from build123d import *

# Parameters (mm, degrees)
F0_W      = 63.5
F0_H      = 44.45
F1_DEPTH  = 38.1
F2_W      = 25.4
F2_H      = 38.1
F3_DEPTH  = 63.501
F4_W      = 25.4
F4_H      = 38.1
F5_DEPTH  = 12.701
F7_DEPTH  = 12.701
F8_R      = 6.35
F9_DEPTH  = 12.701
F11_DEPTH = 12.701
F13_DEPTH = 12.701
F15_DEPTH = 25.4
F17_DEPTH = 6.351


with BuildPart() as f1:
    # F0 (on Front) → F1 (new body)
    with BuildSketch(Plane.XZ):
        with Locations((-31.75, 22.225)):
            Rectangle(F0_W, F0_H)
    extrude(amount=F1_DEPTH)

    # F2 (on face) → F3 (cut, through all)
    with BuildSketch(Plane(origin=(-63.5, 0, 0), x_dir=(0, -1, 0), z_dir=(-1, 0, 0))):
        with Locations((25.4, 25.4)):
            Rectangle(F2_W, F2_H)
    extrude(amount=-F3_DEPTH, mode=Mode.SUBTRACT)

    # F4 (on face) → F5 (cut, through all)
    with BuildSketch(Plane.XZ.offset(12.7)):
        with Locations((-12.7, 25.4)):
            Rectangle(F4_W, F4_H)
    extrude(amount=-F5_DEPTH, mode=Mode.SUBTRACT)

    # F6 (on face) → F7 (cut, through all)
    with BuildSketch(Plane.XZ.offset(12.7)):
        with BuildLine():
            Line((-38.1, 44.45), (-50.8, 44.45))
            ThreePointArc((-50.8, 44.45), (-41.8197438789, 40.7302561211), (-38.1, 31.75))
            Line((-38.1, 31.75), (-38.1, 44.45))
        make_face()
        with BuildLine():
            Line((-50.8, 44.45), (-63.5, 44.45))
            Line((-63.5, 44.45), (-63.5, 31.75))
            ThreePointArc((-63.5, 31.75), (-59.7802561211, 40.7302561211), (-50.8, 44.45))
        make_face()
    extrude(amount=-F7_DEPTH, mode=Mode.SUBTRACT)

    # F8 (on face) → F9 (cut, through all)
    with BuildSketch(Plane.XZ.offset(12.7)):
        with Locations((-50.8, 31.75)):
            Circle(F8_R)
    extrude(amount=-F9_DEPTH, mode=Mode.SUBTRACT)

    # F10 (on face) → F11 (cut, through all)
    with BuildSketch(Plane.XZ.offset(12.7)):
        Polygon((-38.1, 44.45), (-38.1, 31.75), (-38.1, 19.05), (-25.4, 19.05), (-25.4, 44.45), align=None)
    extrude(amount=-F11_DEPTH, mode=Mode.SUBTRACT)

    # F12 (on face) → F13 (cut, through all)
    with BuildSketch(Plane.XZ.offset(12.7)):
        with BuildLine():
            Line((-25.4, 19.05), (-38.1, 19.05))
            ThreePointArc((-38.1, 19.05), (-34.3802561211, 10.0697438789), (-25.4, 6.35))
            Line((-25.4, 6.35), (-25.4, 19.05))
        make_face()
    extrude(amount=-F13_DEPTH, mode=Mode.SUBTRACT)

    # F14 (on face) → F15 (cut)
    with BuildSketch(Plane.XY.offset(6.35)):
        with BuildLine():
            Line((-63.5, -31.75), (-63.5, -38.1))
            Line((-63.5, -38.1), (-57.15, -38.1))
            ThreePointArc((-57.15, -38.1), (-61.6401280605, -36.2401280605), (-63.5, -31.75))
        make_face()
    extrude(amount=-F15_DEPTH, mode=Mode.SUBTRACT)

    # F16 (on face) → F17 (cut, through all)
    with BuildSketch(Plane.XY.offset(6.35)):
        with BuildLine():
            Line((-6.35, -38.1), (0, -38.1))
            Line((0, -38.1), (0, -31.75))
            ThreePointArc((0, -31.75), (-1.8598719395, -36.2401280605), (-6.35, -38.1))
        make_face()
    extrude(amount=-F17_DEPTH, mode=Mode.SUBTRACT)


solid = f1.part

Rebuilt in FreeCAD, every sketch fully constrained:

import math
import FreeCAD as App
import Part
import Sketcher
from FreeCAD import Vector
Q = App.Units.Quantity

doc = App.newDocument("Part")
body = doc.addObject("PartDesign::Body", "Body")

# Sketch on XZ plane
sketch1 = body.newObject("Sketcher::SketchObject", "Sketch")
sketch1.AttachmentSupport = (doc.getObject("XZ_Plane"), [""])
sketch1.MapMode = "FlatFace"
sketch1.addGeometry([
    Part.LineSegment(Vector(-63.5, 44.45, 0), Vector(-63.5, 0, 0)),
    Part.LineSegment(Vector(-63.5, 0, 0), Vector(0, 0, 0)),
    Part.LineSegment(Vector(0, 0, 0), Vector(0, 44.45, 0)),
    Part.LineSegment(Vector(0, 44.45, 0), Vector(-63.5, 44.45, 0)),
], False)
sketch1.addConstraint([
    Sketcher.Constraint("Coincident", 0, 2, 1, 1),
    Sketcher.Constraint("Coincident", 1, 2, 2, 1),
    Sketcher.Constraint("Coincident", 2, 2, 3, 1),
    Sketcher.Constraint("Coincident", 3, 2, 0, 1),
    Sketcher.Constraint("Vertical", 0),
    Sketcher.Constraint("Horizontal", 1),
    Sketcher.Constraint("Vertical", 2),
    Sketcher.Constraint("Horizontal", 3),
    Sketcher.Constraint("Coincident", 1, 2, -1, 1),
    Sketcher.Constraint("DistanceX", 1, 1, 1, 2, Q("2.5 in")),
    Sketcher.Constraint("DistanceY", 0, 2, 0, 1, Q("1.75 in")),
])
pad1 = body.newObject("PartDesign::Pad", "Pad")
pad1.Profile = sketch1
pad1.Length = Q("1.5 in")

# Sketch on YZ plane
sketch2 = body.newObject("Sketcher::SketchObject", "Sketch001")
sketch2.AttachmentSupport = (doc.getObject("YZ_Plane"), [""])
sketch2.MapMode = "FlatFace"
sketch2.AttachmentOffset = App.Placement(Vector(0, 0, -2.5 * 25.4), App.Rotation())
sketch2.addGeometry([
    Part.LineSegment(Vector(-12.7, 44.45, 0), Vector(-12.7, 6.35, 0)),
    Part.LineSegment(Vector(-12.7, 6.35, 0), Vector(-38.1, 6.35, 0)),
    Part.LineSegment(Vector(-38.1, 6.35, 0), Vector(-38.1, 44.45, 0)),
    Part.LineSegment(Vector(-38.1, 44.45, 0), Vector(-12.7, 44.45, 0)),
], False)
sketch2.addConstraint([
    Sketcher.Constraint("Coincident", 0, 2, 1, 1),
    Sketcher.Constraint("Coincident", 1, 2, 2, 1),
    Sketcher.Constraint("Coincident", 2, 2, 3, 1),
    Sketcher.Constraint("Coincident", 3, 2, 0, 1),
    Sketcher.Constraint("Vertical", 0),
    Sketcher.Constraint("Horizontal", 1),
    Sketcher.Constraint("Vertical", 2),
    Sketcher.Constraint("Horizontal", 3),
    Sketcher.Constraint("DistanceX", 1, 2, 1, 1, Q("1 in")),
    Sketcher.Constraint("DistanceY", 0, 2, 0, 1, Q("1.5 in")),
    Sketcher.Constraint("DistanceX", 0, 2, -1, 1, Q("0.5 in")),
    Sketcher.Constraint("DistanceY", -1, 1, 0, 2, Q("0.25 in")),
])
pocket1 = body.newObject("PartDesign::Pocket", "Pocket")
pocket1.Profile = sketch2
pocket1.Type = "ThroughAll"
pocket1.Reversed = True

# Sketch on XZ plane
sketch3 = body.newObject("Sketcher::SketchObject", "Sketch002")
sketch3.AttachmentSupport = (doc.getObject("XZ_Plane"), [""])
sketch3.MapMode = "FlatFace"
sketch3.AttachmentOffset = App.Placement(Vector(0, 0, 0.5 * 25.4), App.Rotation())
sketch3.addGeometry([
    Part.LineSegment(Vector(-25.4, 44.45, 0), Vector(-25.4, 6.35, 0)),
    Part.LineSegment(Vector(-25.4, 6.35, 0), Vector(0, 6.35, 0)),
    Part.LineSegment(Vector(0, 6.35, 0), Vector(0, 44.45, 0)),
    Part.LineSegment(Vector(0, 44.45, 0), Vector(-25.4, 44.45, 0)),
], False)
sketch3.addConstraint([
    Sketcher.Constraint("Coincident", 0, 2, 1, 1),
    Sketcher.Constraint("Coincident", 1, 2, 2, 1),
    Sketcher.Constraint("Coincident", 2, 2, 3, 1),
    Sketcher.Constraint("Coincident", 3, 2, 0, 1),
    Sketcher.Constraint("Vertical", 0),
    Sketcher.Constraint("Horizontal", 1),
    Sketcher.Constraint("Vertical", 2),
    Sketcher.Constraint("Horizontal", 3),
    Sketcher.Constraint("PointOnObject", 1, 2, -2),
    Sketcher.Constraint("DistanceX", 1, 1, 1, 2, Q("1 in")),
    Sketcher.Constraint("DistanceY", 0, 2, 0, 1, Q("1.5 in")),
    Sketcher.Constraint("DistanceY", -1, 1, 0, 2, Q("0.25 in")),
])
pocket2 = body.newObject("PartDesign::Pocket", "Pocket001")
pocket2.Profile = sketch3
pocket2.Type = "ThroughAll"

# Sketch on XZ plane
sketch4 = body.newObject("Sketcher::SketchObject", "Sketch003")
sketch4.AttachmentSupport = (doc.getObject("XZ_Plane"), [""])
sketch4.MapMode = "FlatFace"
sketch4.AttachmentOffset = App.Placement(Vector(0, 0, 0.5 * 25.4), App.Rotation())
sketch4.addGeometry([
    Part.LineSegment(Vector(-38.1, 44.45, 0), Vector(-50.8, 44.45, 0)),  # 0
    Part.ArcOfCircle(Part.Circle(Vector(-50.8, 31.75, 0), Vector(0, 0, 1), 12.7), math.radians(0), math.radians(90)),  # 1
    Part.LineSegment(Vector(-38.1, 31.75, 0), Vector(-38.1, 44.45, 0)),  # 2
    Part.LineSegment(Vector(-50.8, 44.45, 0), Vector(-63.5, 44.45, 0)),  # 3
    Part.LineSegment(Vector(-63.5, 44.45, 0), Vector(-63.5, 31.75, 0)),  # 4
    Part.ArcOfCircle(Part.Circle(Vector(-50.8, 31.75, 0), Vector(0, 0, 1), 12.7), math.radians(90), math.radians(180)),  # 5
], False)
sketch4.addConstraint([
    Sketcher.Constraint("Tangent", 0, 2, 1, 2),
    Sketcher.Constraint("Tangent", 1, 1, 2, 1),
    Sketcher.Constraint("Coincident", 2, 2, 0, 1),
    Sketcher.Constraint("Coincident", 3, 2, 4, 1),
    Sketcher.Constraint("Tangent", 4, 2, 5, 2),
    Sketcher.Constraint("Tangent", 5, 1, 3, 1),
    Sketcher.Constraint("Horizontal", 0),
    Sketcher.Constraint("Vertical", 2),
    Sketcher.Constraint("Horizontal", 3),
    Sketcher.Constraint("Vertical", 4),
    Sketcher.Constraint("Coincident", 5, 3, 1, 3),
    Sketcher.Constraint("Equal", 1, 5),
    Sketcher.Constraint("Radius", 1, Q("0.5 in")),
    Sketcher.Constraint("DistanceX", 1, 3, -1, 1, Q("2 in")),
    Sketcher.Constraint("DistanceY", -1, 1, 1, 3, Q("1.25 in")),
])
pocket3 = body.newObject("PartDesign::Pocket", "Pocket002")
pocket3.Profile = sketch4
pocket3.Type = "ThroughAll"

# Sketch on XZ plane
sketch5 = body.newObject("Sketcher::SketchObject", "Sketch004")
sketch5.AttachmentSupport = (doc.getObject("XZ_Plane"), [""])
sketch5.MapMode = "FlatFace"
sketch5.AttachmentOffset = App.Placement(Vector(0, 0, 0.5 * 25.4), App.Rotation())
sketch5.addGeometry(Part.Circle(Vector(-50.8, 31.75, 0), Vector(0, 0, 1), 6.35), False)
sketch5.addConstraint([
    Sketcher.Constraint("Diameter", 0, Q("0.5 in")),
    Sketcher.Constraint("DistanceX", 0, 3, -1, 1, Q("2 in")),
    Sketcher.Constraint("DistanceY", -1, 1, 0, 3, Q("1.25 in")),
])
pocket4 = body.newObject("PartDesign::Pocket", "Pocket003")
pocket4.Profile = sketch5
pocket4.Type = "ThroughAll"

# Sketch on XZ plane
sketch6 = body.newObject("Sketcher::SketchObject", "Sketch005")
sketch6.AttachmentSupport = (doc.getObject("XZ_Plane"), [""])
sketch6.MapMode = "FlatFace"
sketch6.AttachmentOffset = App.Placement(Vector(0, 0, 0.5 * 25.4), App.Rotation())
sketch6.addGeometry([
    Part.LineSegment(Vector(-38.1, 44.45, 0), Vector(-38.1, 19.05, 0)),
    Part.LineSegment(Vector(-38.1, 19.05, 0), Vector(-25.4, 19.05, 0)),
    Part.LineSegment(Vector(-25.4, 19.05, 0), Vector(-25.4, 44.45, 0)),
    Part.LineSegment(Vector(-25.4, 44.45, 0), Vector(-38.1, 44.45, 0)),
], False)
sketch6.addConstraint([
    Sketcher.Constraint("Coincident", 0, 2, 1, 1),
    Sketcher.Constraint("Coincident", 1, 2, 2, 1),
    Sketcher.Constraint("Coincident", 2, 2, 3, 1),
    Sketcher.Constraint("Coincident", 3, 2, 0, 1),
    Sketcher.Constraint("Vertical", 0),
    Sketcher.Constraint("Horizontal", 1),
    Sketcher.Constraint("Vertical", 2),
    Sketcher.Constraint("Horizontal", 3),
    Sketcher.Constraint("DistanceY", 0, 2, 0, 1, Q("1 in")),
    Sketcher.Constraint("DistanceX", 1, 1, 1, 2, Q("0.5 in")),
    Sketcher.Constraint("DistanceX", 1, 2, -1, 1, Q("1 in")),
    Sketcher.Constraint("DistanceY", -1, 1, 0, 2, Q("0.75 in")),
])
pocket5 = body.newObject("PartDesign::Pocket", "Pocket004")
pocket5.Profile = sketch6
pocket5.Type = "ThroughAll"

# Sketch on XZ plane
sketch7 = body.newObject("Sketcher::SketchObject", "Sketch006")
sketch7.AttachmentSupport = (doc.getObject("XZ_Plane"), [""])
sketch7.MapMode = "FlatFace"
sketch7.AttachmentOffset = App.Placement(Vector(0, 0, 0.5 * 25.4), App.Rotation())
sketch7.addGeometry([
    Part.LineSegment(Vector(-25.4, 19.05, 0), Vector(-38.1, 19.05, 0)),
    Part.ArcOfCircle(Part.Circle(Vector(-25.4, 19.05, 0), Vector(0, 0, 1), 12.7), math.radians(180), math.radians(270)),
    Part.LineSegment(Vector(-25.4, 6.35, 0), Vector(-25.4, 19.05, 0)),
], False)
sketch7.addConstraint([
    Sketcher.Constraint("Coincident", 0, 2, 1, 1),
    Sketcher.Constraint("Coincident", 1, 2, 2, 1),
    Sketcher.Constraint("Coincident", 2, 2, 0, 1),
    Sketcher.Constraint("Horizontal", 0),
    Sketcher.Constraint("Vertical", 2),
    Sketcher.Constraint("Coincident", 2, 2, 1, 3),
    Sketcher.Constraint("Radius", 1, Q("0.5 in")),
    Sketcher.Constraint("DistanceX", 1, 3, -1, 1, Q("1 in")),
    Sketcher.Constraint("DistanceY", -1, 1, 1, 3, Q("0.75 in")),
])
pocket6 = body.newObject("PartDesign::Pocket", "Pocket005")
pocket6.Profile = sketch7
pocket6.Type = "ThroughAll"

# Sketch on XY plane
sketch8 = body.newObject("Sketcher::SketchObject", "Sketch007")
sketch8.AttachmentSupport = (doc.getObject("XY_Plane"), [""])
sketch8.MapMode = "FlatFace"
sketch8.AttachmentOffset = App.Placement(Vector(0, 0, 0.25 * 25.4), App.Rotation())
sketch8.addGeometry([
    Part.LineSegment(Vector(-63.5, -31.75, 0), Vector(-63.5, -38.1, 0)),
    Part.LineSegment(Vector(-63.5, -38.1, 0), Vector(-57.15, -38.1, 0)),
    Part.ArcOfCircle(Part.Circle(Vector(-57.15, -31.75, 0), Vector(0, 0, 1), 6.35), math.radians(180), math.radians(270)),
], False)
sketch8.addConstraint([
    Sketcher.Constraint("Coincident", 0, 2, 1, 1),
    Sketcher.Constraint("Tangent", 1, 2, 2, 2),
    Sketcher.Constraint("Tangent", 2, 1, 0, 1),
    Sketcher.Constraint("Vertical", 0),
    Sketcher.Constraint("Horizontal", 1),
    Sketcher.Constraint("Radius", 2, Q("0.25 in")),
    Sketcher.Constraint("DistanceX", 0, 2, -1, 1, Q("2.5 in")),
    Sketcher.Constraint("DistanceY", 0, 2, -1, 1, Q("1.5 in")),
])
pocket7 = body.newObject("PartDesign::Pocket", "Pocket006")
pocket7.Profile = sketch8
pocket7.Length = Q("1 in")

# Sketch on XY plane
sketch9 = body.newObject("Sketcher::SketchObject", "Sketch008")
sketch9.AttachmentSupport = (doc.getObject("XY_Plane"), [""])
sketch9.MapMode = "FlatFace"
sketch9.AttachmentOffset = App.Placement(Vector(0, 0, 0.25 * 25.4), App.Rotation())
sketch9.addGeometry([
    Part.LineSegment(Vector(-6.35, -38.1, 0), Vector(0, -38.1, 0)),
    Part.LineSegment(Vector(0, -38.1, 0), Vector(0, -31.75, 0)),
    Part.ArcOfCircle(Part.Circle(Vector(-6.35, -31.75, 0), Vector(0, 0, 1), 6.35), math.radians(-90), math.radians(0)),
], False)
sketch9.addConstraint([
    Sketcher.Constraint("Coincident", 0, 2, 1, 1),
    Sketcher.Constraint("Tangent", 1, 2, 2, 2),
    Sketcher.Constraint("Tangent", 2, 1, 0, 1),
    Sketcher.Constraint("Horizontal", 0),
    Sketcher.Constraint("Vertical", 1),
    Sketcher.Constraint("PointOnObject", 0, 2, -2),
    Sketcher.Constraint("Radius", 2, Q("0.25 in")),
    Sketcher.Constraint("DistanceY", 0, 2, -1, 1, Q("1.5 in")),
])
pocket8 = body.newObject("PartDesign::Pocket", "Pocket007")
pocket8.Profile = sketch9
pocket8.Type = "ThroughAll"

doc.recompute()
